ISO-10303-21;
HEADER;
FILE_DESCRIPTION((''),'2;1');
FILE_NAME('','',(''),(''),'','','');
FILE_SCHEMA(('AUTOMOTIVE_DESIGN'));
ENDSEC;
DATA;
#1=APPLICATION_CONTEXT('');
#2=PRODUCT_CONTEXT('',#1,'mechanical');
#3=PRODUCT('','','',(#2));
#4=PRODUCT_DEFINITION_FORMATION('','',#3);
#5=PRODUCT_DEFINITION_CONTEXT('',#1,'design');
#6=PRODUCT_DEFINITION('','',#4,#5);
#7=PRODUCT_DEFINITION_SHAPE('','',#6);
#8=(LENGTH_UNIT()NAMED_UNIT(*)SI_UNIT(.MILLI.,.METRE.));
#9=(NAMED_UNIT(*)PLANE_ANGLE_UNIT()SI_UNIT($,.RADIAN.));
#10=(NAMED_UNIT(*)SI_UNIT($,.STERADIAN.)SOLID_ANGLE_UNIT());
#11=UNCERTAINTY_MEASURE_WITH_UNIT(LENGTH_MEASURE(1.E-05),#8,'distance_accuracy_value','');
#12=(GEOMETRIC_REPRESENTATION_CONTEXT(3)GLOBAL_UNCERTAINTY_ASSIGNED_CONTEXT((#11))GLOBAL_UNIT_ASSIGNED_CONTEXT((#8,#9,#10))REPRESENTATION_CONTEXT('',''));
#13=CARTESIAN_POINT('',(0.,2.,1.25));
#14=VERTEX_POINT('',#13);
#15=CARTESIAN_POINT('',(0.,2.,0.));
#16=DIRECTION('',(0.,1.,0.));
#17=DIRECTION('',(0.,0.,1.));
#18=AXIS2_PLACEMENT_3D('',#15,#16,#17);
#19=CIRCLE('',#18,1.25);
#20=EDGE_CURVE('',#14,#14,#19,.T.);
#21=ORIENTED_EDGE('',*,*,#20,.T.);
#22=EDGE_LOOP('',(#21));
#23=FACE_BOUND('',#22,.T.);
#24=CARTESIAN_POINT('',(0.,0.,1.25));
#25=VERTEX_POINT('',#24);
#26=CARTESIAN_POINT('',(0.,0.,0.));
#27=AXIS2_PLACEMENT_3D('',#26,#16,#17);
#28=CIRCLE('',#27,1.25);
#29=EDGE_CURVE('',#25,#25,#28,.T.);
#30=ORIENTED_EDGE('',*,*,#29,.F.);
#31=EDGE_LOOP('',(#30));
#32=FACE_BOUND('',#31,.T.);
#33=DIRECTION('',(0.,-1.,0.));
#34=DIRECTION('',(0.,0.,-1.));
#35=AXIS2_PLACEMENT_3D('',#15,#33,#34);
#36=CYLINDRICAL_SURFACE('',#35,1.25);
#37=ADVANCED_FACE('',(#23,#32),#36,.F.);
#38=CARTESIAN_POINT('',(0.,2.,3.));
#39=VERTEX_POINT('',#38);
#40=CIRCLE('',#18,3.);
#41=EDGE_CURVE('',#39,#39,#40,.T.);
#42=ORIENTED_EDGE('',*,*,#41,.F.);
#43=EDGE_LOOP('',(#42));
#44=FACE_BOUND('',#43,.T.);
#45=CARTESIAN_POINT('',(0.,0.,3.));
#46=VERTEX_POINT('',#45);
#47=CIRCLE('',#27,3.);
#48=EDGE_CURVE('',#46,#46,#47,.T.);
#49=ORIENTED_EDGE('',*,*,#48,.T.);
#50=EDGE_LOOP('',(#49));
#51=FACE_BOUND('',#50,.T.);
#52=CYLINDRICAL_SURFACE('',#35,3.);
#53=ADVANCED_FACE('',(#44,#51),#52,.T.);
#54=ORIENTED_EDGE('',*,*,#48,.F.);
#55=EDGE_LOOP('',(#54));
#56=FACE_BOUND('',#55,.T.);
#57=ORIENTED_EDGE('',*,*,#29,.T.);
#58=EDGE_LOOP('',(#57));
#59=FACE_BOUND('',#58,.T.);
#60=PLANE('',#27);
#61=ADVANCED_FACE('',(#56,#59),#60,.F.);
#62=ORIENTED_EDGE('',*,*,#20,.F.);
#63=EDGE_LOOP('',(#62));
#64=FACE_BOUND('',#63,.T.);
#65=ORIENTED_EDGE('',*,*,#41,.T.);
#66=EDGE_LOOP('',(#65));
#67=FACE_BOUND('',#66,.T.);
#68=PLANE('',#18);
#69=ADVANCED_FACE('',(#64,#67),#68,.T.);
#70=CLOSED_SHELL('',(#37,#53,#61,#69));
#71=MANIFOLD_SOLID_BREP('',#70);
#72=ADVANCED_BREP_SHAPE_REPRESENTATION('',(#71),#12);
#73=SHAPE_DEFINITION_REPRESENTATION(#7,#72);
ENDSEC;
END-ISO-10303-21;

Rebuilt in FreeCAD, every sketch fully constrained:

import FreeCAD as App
import Part
import Sketcher
from FreeCAD import Vector
Q = App.Units.Quantity

doc = App.newDocument("Part")
body = doc.addObject("PartDesign::Body", "Body")

# Sketch on XZ plane
sketch1 = doc.addObject("Sketcher::SketchObject", "Sketch")
body.addObject(sketch1)
sketch1.AttachmentSupport = (doc.XZ_Plane, [""])
sketch1.MapMode = "FlatFace"
sketch1.addGeometry(Part.Circle(Vector(0, 0, 0), Vector(0, 0, 1), 3), False)
sketch1.addGeometry(Part.Circle(Vector(0, 0, 0), Vector(0, 0, 1), 1.2), False)
sketch1.addConstraint(Sketcher.Constraint("Coincident", 0, 3, -1, 1))
sketch1.addConstraint(Sketcher.Constraint("Coincident", 1, 3, -1, 1))
sketch1.addConstraint(Sketcher.Constraint("Diameter", 0, Q("6 mm")))
sketch1.addConstraint(Sketcher.Constraint("Diameter", 1, Q("2.5 mm")))
pad1 = doc.addObject("PartDesign::Pad", "Pad")
body.addObject(pad1)
pad1.Profile = sketch1
pad1.Length = 2
pad1.Reversed = True

doc.recompute()
